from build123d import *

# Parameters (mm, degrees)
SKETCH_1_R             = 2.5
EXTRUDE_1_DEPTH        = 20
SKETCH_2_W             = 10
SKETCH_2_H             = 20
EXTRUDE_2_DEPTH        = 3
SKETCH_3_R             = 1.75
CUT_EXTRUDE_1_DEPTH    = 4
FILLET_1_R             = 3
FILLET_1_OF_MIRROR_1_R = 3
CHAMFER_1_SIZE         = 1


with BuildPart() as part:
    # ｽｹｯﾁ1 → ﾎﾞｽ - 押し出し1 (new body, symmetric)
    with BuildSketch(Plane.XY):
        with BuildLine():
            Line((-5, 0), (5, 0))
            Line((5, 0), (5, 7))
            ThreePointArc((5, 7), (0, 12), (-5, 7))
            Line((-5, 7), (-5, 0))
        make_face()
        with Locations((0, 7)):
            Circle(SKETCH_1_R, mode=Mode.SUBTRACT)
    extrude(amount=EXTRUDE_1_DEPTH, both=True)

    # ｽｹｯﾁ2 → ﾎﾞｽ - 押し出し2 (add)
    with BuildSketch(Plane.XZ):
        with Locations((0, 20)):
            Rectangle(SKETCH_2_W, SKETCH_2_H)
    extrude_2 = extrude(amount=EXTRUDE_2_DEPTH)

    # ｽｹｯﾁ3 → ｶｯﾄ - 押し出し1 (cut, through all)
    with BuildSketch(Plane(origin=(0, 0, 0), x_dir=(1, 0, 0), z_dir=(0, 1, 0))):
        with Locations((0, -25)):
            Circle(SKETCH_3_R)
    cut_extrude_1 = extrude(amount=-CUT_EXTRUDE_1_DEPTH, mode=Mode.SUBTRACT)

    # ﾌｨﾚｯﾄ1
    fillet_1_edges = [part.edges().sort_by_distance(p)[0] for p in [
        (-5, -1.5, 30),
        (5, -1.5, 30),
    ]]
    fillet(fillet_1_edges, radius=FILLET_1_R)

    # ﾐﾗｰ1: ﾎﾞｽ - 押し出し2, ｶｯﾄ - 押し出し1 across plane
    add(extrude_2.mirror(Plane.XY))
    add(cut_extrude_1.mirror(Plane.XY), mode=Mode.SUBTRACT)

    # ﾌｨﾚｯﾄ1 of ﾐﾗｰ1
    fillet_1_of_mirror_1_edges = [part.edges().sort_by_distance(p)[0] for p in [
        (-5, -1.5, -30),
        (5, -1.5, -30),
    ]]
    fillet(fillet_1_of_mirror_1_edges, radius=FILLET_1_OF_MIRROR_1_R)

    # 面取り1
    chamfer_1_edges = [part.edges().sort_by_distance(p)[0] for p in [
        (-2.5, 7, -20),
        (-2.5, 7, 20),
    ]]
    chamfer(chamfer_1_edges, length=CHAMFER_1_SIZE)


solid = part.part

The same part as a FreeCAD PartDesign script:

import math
import FreeCAD as App
import Part
import Sketcher
from FreeCAD import Vector


def edges_at(feature, points):
    """Names of the edges that pass closest to the given points."""
    edges = feature.Shape.Edges
    near = lambda p: min(range(len(edges)), key=lambda i: edges[i].distToShape(Part.Vertex(*p))[0])
    return sorted({f"Edge{near(p) + 1}" for p in points})

doc = App.newDocument("Part")
params = doc.addObject("Spreadsheet::Sheet", "Params")
for row, (alias, value) in enumerate([
    ("sketch1_diameter", "5 mm"),
    ("sketch1_radius", "5 mm"),
    ("sketch1_height", "7 mm"),
    ("pad1_length", "40 mm"),
    ("sketch2_width", "10 mm"),
    ("sketch2_height", "20 mm"),
    ("pad2_length", "3 mm"),
    ("sketch3_diameter", "3.5 mm"),
    ("fillet_radius", "3 mm"),
    ("fillet2_radius", "3 mm"),
    ("chamfer_size", "1 mm"),
], start=1):
    params.set(f"A{row}", alias)
    params.set(f"B{row}", "=" + value)
    params.setAlias(f"B{row}", alias)

body = doc.addObject("PartDesign::Body", "Body")

sketch1 = body.newObject("Sketcher::SketchObject", "Sketch")
sketch1.AttachmentSupport = (doc.getObject("XY_Plane"), [""])
sketch1.MapMode = "FlatFace"
sketch1.addGeometry([
    Part.LineSegment(Vector(-5, 0, 0), Vector(5, 0, 0)),
    Part.LineSegment(Vector(5, 0, 0), Vector(5, 7, 0)),
    Part.ArcOfCircle(Part.Circle(Vector(0, 7, 0), Vector(0, 0, 1), 5), math.radians(0), math.radians(180)),
    Part.LineSegment(Vector(-5, 7, 0), Vector(-5, 0, 0)),
    Part.Circle(Vector(0, 7, 0), Vector(0, 0, 1), 2.5),
], False)
sketch1.addConstraint([
    Sketcher.Constraint("Coincident", 0, 2, 1, 1),
    Sketcher.Constraint("Tangent", 1, 2, 2, 1),
    Sketcher.Constraint("Tangent", 2, 2, 3, 1),
    Sketcher.Constraint("Coincident", 3, 2, 0, 1),
    Sketcher.Constraint("Horizontal", 0),
    Sketcher.Constraint("Vertical", 1),
    Sketcher.Constraint("Vertical", 3),
    Sketcher.Constraint("Coincident", 4, 3, 2, 3),
    Sketcher.Constraint("Symmetric", 0, 2, 3, 2, -1, 1),
    Sketcher.Constraint("Diameter", 4, 5.0),
    Sketcher.Constraint("Radius", 2, 5.0),
    Sketcher.Constraint("DistanceY", 1, 1, 1, 2, 7.0),
])
sketch1.setExpression("Constraints[9]", "Params.sketch1_diameter")
sketch1.setExpression("Constraints[10]", "Params.sketch1_radius")
sketch1.setExpression("Constraints[11]", "Params.sketch1_height")
pad1 = body.newObject("PartDesign::Pad", "Pad")
pad1.Profile = sketch1
pad1.setExpression("Length", "Params.pad1_length")
pad1.Midplane = True

sketch2 = body.newObject("Sketcher::SketchObject", "Sketch001")
sketch2.AttachmentSupport = (doc.getObject("XZ_Plane"), [""])
sketch2.MapMode = "FlatFace"
sketch2.addGeometry([
    Part.LineSegment(Vector(-5, 30, 0), Vector(-5, 10, 0)),
    Part.LineSegment(Vector(-5, 10, 0), Vector(5, 10, 0)),
    Part.LineSegment(Vector(5, 10, 0), Vector(5, 30, 0)),
    Part.LineSegment(Vector(5, 30, 0), Vector(-5, 30, 0)),
], False)
sketch2.addConstraint([
    Sketcher.Constraint("Coincident", 0, 2, 1, 1),
    Sketcher.Constraint("Coincident", 1, 2, 2, 1),
    Sketcher.Constraint("Coincident", 2, 2, 3, 1),
    Sketcher.Constraint("Coincident", 3, 2, 0, 1),
    Sketcher.Constraint("Vertical", 0),
    Sketcher.Constraint("Horizontal", 1),
    Sketcher.Constraint("Vertical", 2),
    Sketcher.Constraint("Horizontal", 3),
    Sketcher.Constraint("DistanceX", 1, 1, 1, 2, 10.0),
    Sketcher.Constraint("DistanceY", 0, 2, 0, 1, 20.0),
    Sketcher.Constraint("DistanceX", 0, 2, -1, 1, 5.0),
    Sketcher.Constraint("DistanceY", -1, 1, 0, 2, 10.0),
])
sketch2.setExpression("Constraints[8]", "Params.sketch2_width")
sketch2.setExpression("Constraints[9]", "Params.sketch2_height")
pad2 = body.newObject("PartDesign::Pad", "Pad001")
pad2.Profile = sketch2
pad2.setExpression("Length", "Params.pad2_length")

sketch3 = body.newObject("Sketcher::SketchObject", "Sketch002")
sketch3.AttachmentSupport = (doc.getObject("XZ_Plane"), [""])
sketch3.MapMode = "FlatFace"
sketch3.addGeometry(Part.Circle(Vector(0, 25, 0), Vector(0, 0, 1), 1.8), False)
sketch3.addConstraint([
    Sketcher.Constraint("PointOnObject", 0, 3, -2),
    Sketcher.Constraint("Diameter", 0, 3.5),
    Sketcher.Constraint("DistanceY", -1, 1, 0, 3, 25.0),
])
sketch3.setExpression("Constraints[1]", "Params.sketch3_diameter")
pocket1 = body.newObject("PartDesign::Pocket", "Pocket")
pocket1.Profile = sketch3
pocket1.Type = "ThroughAll"
pocket1.Reversed = True
doc.recompute()

fillet = body.newObject("PartDesign::Fillet", "Fillet")
fillet.Base = (pocket1, edges_at(pocket1, [(-5, -1.5, 30), (5, -1.5, 30)]))
fillet.setExpression("Radius", "Params.fillet_radius")
doc.recompute()

mirrored = body.newObject("PartDesign::Mirrored", "Mirrored")
mirrored.Originals = [pad2, pocket1]
mirrored.MirrorPlane = (doc.getObject("XY_Plane"), [""])
body.Tip = mirrored
doc.recompute()

fillet2 = body.newObject("PartDesign::Fillet", "Fillet001")
fillet2.Base = (mirrored, edges_at(mirrored, [(-5, -1.5, -30), (5, -1.5, -30)]))
fillet2.setExpression("Radius", "Params.fillet2_radius")
doc.recompute()

chamfer = body.newObject("PartDesign::Chamfer", "Chamfer")
chamfer.Base = (fillet2, edges_at(fillet2, [(-2.5, 7, -20), (-2.5, 7, 20)]))
chamfer.setExpression("Size", "Params.chamfer_size")

doc.recompute()
